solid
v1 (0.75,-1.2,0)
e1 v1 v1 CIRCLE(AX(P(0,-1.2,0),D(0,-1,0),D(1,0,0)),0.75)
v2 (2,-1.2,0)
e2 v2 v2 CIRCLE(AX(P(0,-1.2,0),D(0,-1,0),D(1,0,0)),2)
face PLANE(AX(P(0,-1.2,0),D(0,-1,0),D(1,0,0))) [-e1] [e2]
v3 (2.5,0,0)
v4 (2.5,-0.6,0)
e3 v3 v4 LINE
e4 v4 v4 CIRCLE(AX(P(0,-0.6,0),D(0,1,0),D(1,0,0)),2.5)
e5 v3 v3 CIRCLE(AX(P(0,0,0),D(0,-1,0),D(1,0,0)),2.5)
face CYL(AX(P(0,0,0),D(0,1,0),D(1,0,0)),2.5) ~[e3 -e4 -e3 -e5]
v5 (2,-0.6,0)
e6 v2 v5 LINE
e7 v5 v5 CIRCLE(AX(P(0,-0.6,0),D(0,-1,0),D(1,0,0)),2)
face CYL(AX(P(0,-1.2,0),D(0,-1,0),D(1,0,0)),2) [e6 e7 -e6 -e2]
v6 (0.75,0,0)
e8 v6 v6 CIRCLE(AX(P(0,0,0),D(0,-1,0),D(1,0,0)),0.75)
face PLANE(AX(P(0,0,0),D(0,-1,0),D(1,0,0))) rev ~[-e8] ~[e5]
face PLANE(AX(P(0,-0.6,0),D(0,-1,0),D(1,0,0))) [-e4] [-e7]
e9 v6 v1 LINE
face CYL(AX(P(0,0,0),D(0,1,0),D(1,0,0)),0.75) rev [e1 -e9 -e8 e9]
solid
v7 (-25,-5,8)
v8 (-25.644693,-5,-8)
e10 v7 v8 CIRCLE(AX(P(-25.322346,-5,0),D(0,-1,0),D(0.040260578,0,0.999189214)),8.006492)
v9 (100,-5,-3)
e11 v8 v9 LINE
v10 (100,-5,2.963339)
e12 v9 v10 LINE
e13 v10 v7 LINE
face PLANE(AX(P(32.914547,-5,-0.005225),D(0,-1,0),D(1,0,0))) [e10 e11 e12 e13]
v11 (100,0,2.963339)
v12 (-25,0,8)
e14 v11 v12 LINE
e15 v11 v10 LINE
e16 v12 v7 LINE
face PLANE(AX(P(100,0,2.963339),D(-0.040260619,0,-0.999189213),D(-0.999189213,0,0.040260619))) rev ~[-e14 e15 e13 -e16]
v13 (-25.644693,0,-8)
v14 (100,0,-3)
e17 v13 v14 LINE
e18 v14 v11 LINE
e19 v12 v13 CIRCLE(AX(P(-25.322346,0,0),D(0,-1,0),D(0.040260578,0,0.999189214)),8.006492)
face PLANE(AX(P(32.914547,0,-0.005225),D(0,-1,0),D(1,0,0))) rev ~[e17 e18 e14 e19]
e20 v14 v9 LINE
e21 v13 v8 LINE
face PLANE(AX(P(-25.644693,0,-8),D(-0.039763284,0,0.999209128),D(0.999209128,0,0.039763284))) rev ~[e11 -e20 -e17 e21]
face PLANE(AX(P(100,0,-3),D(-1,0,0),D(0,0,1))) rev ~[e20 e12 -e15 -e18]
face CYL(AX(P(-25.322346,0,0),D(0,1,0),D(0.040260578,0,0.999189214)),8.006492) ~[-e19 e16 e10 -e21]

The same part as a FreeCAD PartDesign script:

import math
import FreeCAD as App
import Part
import Sketcher
Q = App.Units.Quantity

doc = App.newDocument("Part")
body = doc.addObject("PartDesign::Body", "Body")

# Sketch on XZ plane
sketch1 = doc.addObject("Sketcher::SketchObject", "Sketch")
body.addObject(sketch1)
sketch1.AttachmentSupport = (doc.XZ_Plane, [""])
sketch1.MapMode = "FlatFace"
sketch1.addGeometry([
    Part.Circle(App.Vector(0, 0, 0), App.Vector(0, 0, 1), 2.5),
    Part.Circle(App.Vector(0, 0, 0), App.Vector(0, 0, 1), 0.75),
], False)
sketch1.addConstraint([
    Sketcher.Constraint("Coincident", 0, 3, -1, 1),
    Sketcher.Constraint("Coincident", 1, 3, -1, 1),
    Sketcher.Constraint("Diameter", 0, Q("5 mm")),
    Sketcher.Constraint("Diameter", 1, Q("1.5 mm")),
])
pad1 = doc.addObject("PartDesign::Pad", "Pad")
body.addObject(pad1)
pad1.Profile = sketch1
pad1.Length = 1.2

# Sketch on XZ plane
sketch2 = doc.addObject("Sketcher::SketchObject", "Sketch001")
body.addObject(sketch2)
sketch2.AttachmentSupport = (doc.XZ_Plane, [""])
sketch2.MapMode = "FlatFace"
sketch2.AttachmentOffset = App.Placement(App.Vector(0, 0, 1.2), App.Rotation())
sketch2.addGeometry([
    Part.Circle(App.Vector(0, 0, 0), App.Vector(0, 0, 1), 4.21648),
    Part.Circle(App.Vector(0, 0, 0), App.Vector(0, 0, 1), 2),
], False)
sketch2.addConstraint([
    Sketcher.Constraint("Coincident", 0, 3, -1, 1),
    Sketcher.Constraint("Coincident", 1, 3, -1, 1),
    Sketcher.Constraint("Diameter", 1, Q("4 mm")),
    Sketcher.Constraint("Diameter", 0, Q("8.43296 mm")),
])
pocket1 = doc.addObject("PartDesign::Pocket", "Pocket")
body.addObject(pocket1)
pocket1.Profile = sketch2
pocket1.Length = 0.6
body2 = doc.addObject("PartDesign::Body", "Body001")
doc.recompute()

body2.BaseFeature = body
doc.recompute()
body3 = doc.addObject("PartDesign::Body", "Body002")

# Sketch on XZ plane
sketch3 = doc.addObject("Sketcher::SketchObject", "Sketch002")
body3.addObject(sketch3)
sketch3.AttachmentSupport = (doc.getObject("XZ_Plane002"), [""])
sketch3.MapMode = "FlatFace"
sketch3.addGeometry([
    Part.LineSegment(App.Vector(100, 2.963339, 0), App.Vector(-25, 8, 0)),
    Part.ArcOfCircle(Part.Circle(App.Vector(-25.322346, 0, 0), App.Vector(0, 0, 1), 8.006492), math.radians(87.692615), math.radians(267.692608)),
    Part.LineSegment(App.Vector(-25.644693, -8, 0), App.Vector(100, -3, 0)),
    Part.LineSegment(App.Vector(100, -3, 0), App.Vector(100, 2.963339, 0)),
], False)
sketch3.addConstraint([
    Sketcher.Constraint("Tangent", 0, 2, 1, 1),
    Sketcher.Constraint("Coincident", 1, 2, 2, 1),
    Sketcher.Constraint("Coincident", 2, 2, 3, 1),
    Sketcher.Constraint("Coincident", 3, 2, 0, 1),
    Sketcher.Constraint("Vertical", 3),
    Sketcher.Constraint("PointOnObject", 1, 3, -1),
    Sketcher.Constraint("DistanceX", 0, 2, -1, 1, Q("25 mm")),
    Sketcher.Constraint("DistanceY", -1, 1, 0, 2, Q("8 mm")),
    Sketcher.Constraint("DistanceY", 1, 2, -1, 1, Q("8 mm")),
    Sketcher.Constraint("DistanceX", -1, 1, 2, 2, Q("100 mm")),
    Sketcher.Constraint("DistanceY", 2, 2, -1, 1, Q("3 mm")),
    Sketcher.Constraint("DistanceY", 3, 1, 3, 2, Q("5.963339 mm")),
])
pad2 = doc.addObject("PartDesign::Pad", "Pad001")
body3.addObject(pad2)
pad2.Profile = sketch3
pad2.Length = 5
body.Visibility = False

doc.recompute()
